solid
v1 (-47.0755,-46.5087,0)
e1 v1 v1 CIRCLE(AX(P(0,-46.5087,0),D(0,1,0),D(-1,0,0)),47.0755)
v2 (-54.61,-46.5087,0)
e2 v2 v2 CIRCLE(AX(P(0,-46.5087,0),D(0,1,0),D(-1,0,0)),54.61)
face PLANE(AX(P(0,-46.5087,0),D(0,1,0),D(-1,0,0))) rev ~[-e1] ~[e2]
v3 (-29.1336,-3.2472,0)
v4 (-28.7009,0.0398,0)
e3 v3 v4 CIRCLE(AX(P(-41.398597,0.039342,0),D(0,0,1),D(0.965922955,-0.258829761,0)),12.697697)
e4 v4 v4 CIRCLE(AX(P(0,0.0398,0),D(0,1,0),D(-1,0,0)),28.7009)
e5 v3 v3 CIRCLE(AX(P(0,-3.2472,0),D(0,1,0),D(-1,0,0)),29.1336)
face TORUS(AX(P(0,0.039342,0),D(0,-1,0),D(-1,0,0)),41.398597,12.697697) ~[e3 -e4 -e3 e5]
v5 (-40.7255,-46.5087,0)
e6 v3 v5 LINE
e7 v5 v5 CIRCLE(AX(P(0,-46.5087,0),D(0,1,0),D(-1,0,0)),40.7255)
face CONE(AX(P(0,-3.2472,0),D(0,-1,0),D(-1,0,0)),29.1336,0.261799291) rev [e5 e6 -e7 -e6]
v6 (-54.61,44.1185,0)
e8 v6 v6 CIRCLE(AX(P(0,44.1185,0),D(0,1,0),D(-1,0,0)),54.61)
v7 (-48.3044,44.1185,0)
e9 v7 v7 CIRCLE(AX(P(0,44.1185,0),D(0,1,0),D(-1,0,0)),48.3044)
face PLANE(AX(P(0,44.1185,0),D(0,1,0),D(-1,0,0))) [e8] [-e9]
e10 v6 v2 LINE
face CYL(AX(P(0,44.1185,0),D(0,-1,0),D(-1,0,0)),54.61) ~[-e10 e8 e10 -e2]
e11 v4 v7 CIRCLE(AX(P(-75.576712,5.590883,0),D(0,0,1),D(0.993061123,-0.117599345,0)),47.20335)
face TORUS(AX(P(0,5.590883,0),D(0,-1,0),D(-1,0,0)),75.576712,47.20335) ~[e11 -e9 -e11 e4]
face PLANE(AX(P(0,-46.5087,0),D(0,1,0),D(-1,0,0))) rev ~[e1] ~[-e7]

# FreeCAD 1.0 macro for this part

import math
import FreeCAD as App
import Part
import Sketcher
from FreeCAD import Vector
Q = App.Units.Quantity

doc = App.newDocument("Part")
body = doc.addObject("PartDesign::Body", "Body")

sketch1 = doc.addObject("Sketcher::SketchObject", "Sketch")
body.addObject(sketch1)
sketch1.AttachmentSupport = (doc.XY_Plane, [""])
sketch1.MapMode = "FlatFace"
sketch1.addGeometry([
    Part.LineSegment(Vector(-48.3, 44.1, 0), Vector(-54.6, 44.1, 0)),
    Part.LineSegment(Vector(-54.6, 44.1, 0), Vector(-54.6, -46.5, 0)),
    Part.LineSegment(Vector(-54.6, -46.5, 0), Vector(-40.7, -46.5, 0)),
    Part.LineSegment(Vector(-40.7, -46.5, 0), Vector(-29.1, -3.2, 0)),
    Part.ArcOfCircle(Part.Circle(Vector(-41.4, 0, 0), Vector(0, 0, 1), 12.7), math.radians(-15), math.radians(0)),
    Part.ArcOfCircle(Part.Circle(Vector(-75.6, 5.6, 0), Vector(0, 0, 1), 47.2), math.radians(-7), math.radians(55)),
], False)
sketch1.addConstraint([
    Sketcher.Constraint("Coincident", 0, 2, 1, 1),
    Sketcher.Constraint("Coincident", 1, 2, 2, 1),
    Sketcher.Constraint("Coincident", 2, 2, 3, 1),
    Sketcher.Constraint("Tangent", 3, 2, 4, 1),
    Sketcher.Constraint("Coincident", 4, 2, 5, 1),
    Sketcher.Constraint("Coincident", 5, 2, 0, 1),
    Sketcher.Constraint("Horizontal", 0),
    Sketcher.Constraint("Vertical", 1),
    Sketcher.Constraint("Horizontal", 2),
    Sketcher.Constraint("DistanceX", 0, 2, -1, 1, Q("2.15 in")),
    Sketcher.Constraint("Angle", 3, Q("75 deg")),
    Sketcher.Constraint("DistanceX", 0, 2, 0, 1, 6.3056),
    Sketcher.Constraint("Radius", 4, Q("0.4999 in")),
    Sketcher.Constraint("Radius", 5, Q("1.8584 in")),
    Sketcher.Constraint("DistanceY", 1, 2, 1, 1, Q("3.568 in")),
    Sketcher.Constraint("DistanceX", 4, 2, -1, 1, 28.701),
    Sketcher.Constraint("Distance", 3, Q("1.7633 in")),
    Sketcher.Constraint("DistanceX", 5, 3, 4, 3, Q("1.3456 in")),
    Sketcher.Constraint("DistanceY", -1, 1, 4, 3, 0.0393),
])
revolution = doc.addObject("PartDesign::Revolution", "Revolution")
body.addObject(revolution)
revolution.Profile = sketch1
revolution.ReferenceAxis = (sketch1, ["V_Axis"])
revolution.Angle = 360

doc.recompute()
